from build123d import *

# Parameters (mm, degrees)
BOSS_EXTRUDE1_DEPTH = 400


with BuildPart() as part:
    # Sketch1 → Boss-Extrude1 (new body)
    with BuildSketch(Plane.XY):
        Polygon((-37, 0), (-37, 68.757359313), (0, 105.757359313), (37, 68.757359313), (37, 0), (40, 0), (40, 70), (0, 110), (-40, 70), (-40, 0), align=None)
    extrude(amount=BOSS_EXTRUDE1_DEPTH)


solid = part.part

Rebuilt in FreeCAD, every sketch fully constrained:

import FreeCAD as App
import Part
import Sketcher

V = App.Vector
Q = App.Units.Quantity


def add_polygon(sketch, points):
    """Adds a closed chain of lines whose ends are joined by coincident constraints."""
    first, n = sketch.GeometryCount, len(points)
    for a, b in zip(points, points[1:] + points[:1]):
        sketch.addGeometry(Part.LineSegment(App.Vector(*a, 0), App.Vector(*b, 0)), False)
    for i in range(n):
        sketch.addConstraint(Sketcher.Constraint("Coincident", first + i, 2, first + (i + 1) % n, 1))

doc = App.newDocument("Part")
body = doc.addObject("PartDesign::Body", "Body")

# Sketch on XY plane
sketch1 = doc.addObject("Sketcher::SketchObject", "Sketch")
body.addObject(sketch1)
sketch1.AttachmentSupport = (doc.XY_Plane, [""])
sketch1.MapMode = "FlatFace"
add_polygon(sketch1, [(-37, 0), (-37, 68.8), (0, 105.8), (37, 68.8), (37, 0), (40, 0), (40, 70), (0, 110), (-40, 70), (-40, 0)])  # lines 0-9
sketch1.addConstraint([
    Sketcher.Constraint("Vertical", 0),
    Sketcher.Constraint("Vertical", 3),
    Sketcher.Constraint("Horizontal", 4),
    Sketcher.Constraint("Vertical", 5),
    Sketcher.Constraint("Vertical", 8),
    Sketcher.Constraint("Horizontal", 9),
    Sketcher.Constraint("Symmetric", 4, 2, 8, 2, -1, 1),
    Sketcher.Constraint("Symmetric", 0, 2, 2, 2, -2),
    Sketcher.Constraint("PointOnObject", 1, 2, -2),
    Sketcher.Constraint("PointOnObject", 3, 2, -1),
    Sketcher.Constraint("PointOnObject", 6, 2, -2),
    Sketcher.Constraint("Perpendicular", 1, 2),
    Sketcher.Constraint("Parallel", 2, 6),
    Sketcher.Constraint("Perpendicular", 6, 7),
    Sketcher.Constraint("DistanceX", 4, 1, 4, 2, Q("3 mm")),
    Sketcher.Constraint("DistanceY", 5, 1, 5, 2, Q("70 mm")),
    Sketcher.Constraint("DistanceX", 0, 2, -1, 1, Q("37 mm")),
    Sketcher.Constraint("DistanceY", 0, 1, 0, 2, Q("68.757359 mm")),
])
pad1 = doc.addObject("PartDesign::Pad", "Pad")
body.addObject(pad1)
pad1.Profile = sketch1
pad1.Length = 400

doc.recompute()
